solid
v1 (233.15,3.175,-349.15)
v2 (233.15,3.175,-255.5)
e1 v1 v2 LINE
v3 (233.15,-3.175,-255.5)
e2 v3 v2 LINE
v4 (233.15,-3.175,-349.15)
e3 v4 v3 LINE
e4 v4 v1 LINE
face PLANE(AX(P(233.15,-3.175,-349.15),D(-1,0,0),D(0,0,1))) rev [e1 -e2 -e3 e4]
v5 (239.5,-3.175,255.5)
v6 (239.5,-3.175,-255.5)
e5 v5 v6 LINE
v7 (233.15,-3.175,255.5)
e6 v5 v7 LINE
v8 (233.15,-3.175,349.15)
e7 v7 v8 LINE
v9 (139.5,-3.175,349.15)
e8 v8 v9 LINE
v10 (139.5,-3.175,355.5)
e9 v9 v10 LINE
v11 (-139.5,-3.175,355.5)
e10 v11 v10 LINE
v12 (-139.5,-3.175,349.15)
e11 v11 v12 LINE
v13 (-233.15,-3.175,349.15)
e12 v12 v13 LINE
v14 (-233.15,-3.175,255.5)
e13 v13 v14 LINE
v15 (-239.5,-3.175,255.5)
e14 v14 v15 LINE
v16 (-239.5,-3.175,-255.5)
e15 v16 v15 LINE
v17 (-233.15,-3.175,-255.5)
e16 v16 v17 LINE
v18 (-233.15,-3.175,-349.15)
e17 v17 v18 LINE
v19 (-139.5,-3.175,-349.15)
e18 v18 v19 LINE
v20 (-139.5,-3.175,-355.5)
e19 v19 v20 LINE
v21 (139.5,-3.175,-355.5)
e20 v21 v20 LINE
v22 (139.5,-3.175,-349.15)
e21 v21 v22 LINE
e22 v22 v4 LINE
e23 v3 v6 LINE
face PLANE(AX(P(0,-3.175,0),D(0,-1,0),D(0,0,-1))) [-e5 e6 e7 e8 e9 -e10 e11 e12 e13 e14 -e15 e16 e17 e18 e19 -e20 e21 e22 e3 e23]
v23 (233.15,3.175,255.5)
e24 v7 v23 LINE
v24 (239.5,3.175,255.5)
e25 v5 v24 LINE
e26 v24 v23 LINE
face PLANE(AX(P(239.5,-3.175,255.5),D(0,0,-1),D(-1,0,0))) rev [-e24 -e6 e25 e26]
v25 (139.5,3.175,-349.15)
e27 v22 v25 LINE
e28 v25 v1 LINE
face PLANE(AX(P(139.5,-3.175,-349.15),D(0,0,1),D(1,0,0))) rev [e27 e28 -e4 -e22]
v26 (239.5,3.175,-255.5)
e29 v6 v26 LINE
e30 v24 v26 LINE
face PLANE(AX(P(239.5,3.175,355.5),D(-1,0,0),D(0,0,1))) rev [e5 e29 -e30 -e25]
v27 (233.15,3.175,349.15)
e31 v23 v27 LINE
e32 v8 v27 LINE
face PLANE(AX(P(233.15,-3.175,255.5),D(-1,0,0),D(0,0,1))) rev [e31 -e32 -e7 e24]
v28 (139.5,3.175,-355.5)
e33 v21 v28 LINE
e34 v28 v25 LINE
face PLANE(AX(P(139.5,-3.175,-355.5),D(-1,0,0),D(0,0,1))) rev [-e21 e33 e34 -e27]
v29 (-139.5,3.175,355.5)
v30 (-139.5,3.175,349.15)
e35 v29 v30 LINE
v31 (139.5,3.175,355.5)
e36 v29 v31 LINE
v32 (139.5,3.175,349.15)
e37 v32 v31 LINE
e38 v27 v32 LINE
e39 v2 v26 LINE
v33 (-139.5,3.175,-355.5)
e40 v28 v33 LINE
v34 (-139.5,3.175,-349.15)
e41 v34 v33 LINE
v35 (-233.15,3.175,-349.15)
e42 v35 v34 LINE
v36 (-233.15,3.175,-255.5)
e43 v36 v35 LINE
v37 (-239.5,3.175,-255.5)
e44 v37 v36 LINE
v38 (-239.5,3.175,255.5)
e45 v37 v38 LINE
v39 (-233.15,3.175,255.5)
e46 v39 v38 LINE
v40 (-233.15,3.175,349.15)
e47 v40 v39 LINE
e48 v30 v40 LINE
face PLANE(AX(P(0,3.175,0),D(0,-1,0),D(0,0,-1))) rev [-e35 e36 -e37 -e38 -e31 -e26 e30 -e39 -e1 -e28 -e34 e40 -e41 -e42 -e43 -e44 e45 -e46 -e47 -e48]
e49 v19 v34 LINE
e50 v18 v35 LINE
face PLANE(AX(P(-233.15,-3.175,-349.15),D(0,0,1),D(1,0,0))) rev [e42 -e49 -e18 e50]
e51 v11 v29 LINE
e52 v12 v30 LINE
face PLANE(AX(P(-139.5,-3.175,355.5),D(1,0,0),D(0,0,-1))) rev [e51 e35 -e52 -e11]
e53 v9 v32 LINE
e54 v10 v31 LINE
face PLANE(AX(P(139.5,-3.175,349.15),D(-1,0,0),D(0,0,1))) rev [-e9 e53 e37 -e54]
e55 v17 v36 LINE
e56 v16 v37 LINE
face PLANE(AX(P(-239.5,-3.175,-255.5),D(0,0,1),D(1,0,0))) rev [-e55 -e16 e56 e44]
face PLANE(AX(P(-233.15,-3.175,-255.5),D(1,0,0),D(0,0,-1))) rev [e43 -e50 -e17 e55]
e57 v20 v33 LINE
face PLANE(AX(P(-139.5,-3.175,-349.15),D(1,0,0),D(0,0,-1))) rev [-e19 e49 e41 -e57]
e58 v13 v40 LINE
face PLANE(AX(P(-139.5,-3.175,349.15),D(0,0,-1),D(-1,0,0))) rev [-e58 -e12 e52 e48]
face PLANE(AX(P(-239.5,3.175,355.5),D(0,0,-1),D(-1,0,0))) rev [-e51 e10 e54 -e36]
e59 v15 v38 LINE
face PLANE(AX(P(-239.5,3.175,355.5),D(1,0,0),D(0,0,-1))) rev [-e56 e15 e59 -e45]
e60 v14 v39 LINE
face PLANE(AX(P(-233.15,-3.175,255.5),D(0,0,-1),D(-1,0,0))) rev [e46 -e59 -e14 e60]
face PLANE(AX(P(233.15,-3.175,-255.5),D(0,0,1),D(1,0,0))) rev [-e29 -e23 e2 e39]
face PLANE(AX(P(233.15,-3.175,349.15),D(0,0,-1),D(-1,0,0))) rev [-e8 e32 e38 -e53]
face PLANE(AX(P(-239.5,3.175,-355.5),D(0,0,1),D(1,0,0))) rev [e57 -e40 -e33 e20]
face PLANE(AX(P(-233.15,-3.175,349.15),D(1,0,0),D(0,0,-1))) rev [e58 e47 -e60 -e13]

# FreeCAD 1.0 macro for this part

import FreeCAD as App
import Part
import Sketcher
Q = App.Units.Quantity

doc = App.newDocument("Part")
params = doc.addObject("Spreadsheet::Sheet", "Params")
for row, (alias, value) in enumerate([
    ("sketch1_width", "479 mm"),
    ("sketch1_height", "711 mm"),
    ("pad1_length", "6.35 mm"),
    ("sketch2_width", "100 mm"),
    ("sketch2_width2", "6.35 mm"),
], start=1):
    params.set(f"A{row}", alias)
    params.set(f"B{row}", "=" + value)
    params.setAlias(f"B{row}", alias)

body = doc.addObject("PartDesign::Body", "Body")

# Sketch on XZ plane
sketch1 = body.newObject("Sketcher::SketchObject", "Sketch")
sketch1.AttachmentSupport = (doc.getObject("XZ_Plane"), [""])
sketch1.MapMode = "FlatFace"
sketch1.addGeometry([
    Part.LineSegment(App.Vector(-239.5, -355.5, 0), App.Vector(-239.5, 355.5, 0)),
    Part.LineSegment(App.Vector(-239.5, 355.5, 0), App.Vector(239.5, 355.5, 0)),
    Part.LineSegment(App.Vector(239.5, 355.5, 0), App.Vector(239.5, -355.5, 0)),
    Part.LineSegment(App.Vector(239.5, -355.5, 0), App.Vector(-239.5, -355.5, 0)),
], False)
sketch1.addConstraint([
    Sketcher.Constraint("Coincident", 0, 2, 1, 1),
    Sketcher.Constraint("Coincident", 1, 2, 2, 1),
    Sketcher.Constraint("Coincident", 2, 2, 3, 1),
    Sketcher.Constraint("Coincident", 3, 2, 0, 1),
    Sketcher.Constraint("Vertical", 0),
    Sketcher.Constraint("Horizontal", 1),
    Sketcher.Constraint("Vertical", 2),
    Sketcher.Constraint("Horizontal", 3),
    Sketcher.Constraint("Symmetric", 0, 2, 2, 2, -1, 1),
    Sketcher.Constraint("DistanceX", 1, 1, 1, 2, Q("479 mm")),
    Sketcher.Constraint("DistanceY", 0, 1, 0, 2, Q("711 mm")),
])
sketch1.setExpression("Constraints[9]", "Params.sketch1_width")
sketch1.setExpression("Constraints[10]", "Params.sketch1_height")
pad1 = body.newObject("PartDesign::Pad", "Pad")
pad1.Profile = sketch1
pad1.setExpression("Length", "Params.pad1_length")
pad1.Midplane = True

# Sketch on XZ plane
sketch2 = body.newObject("Sketcher::SketchObject", "Sketch001")
sketch2.AttachmentSupport = (doc.getObject("XZ_Plane"), [""])
sketch2.MapMode = "FlatFace"
sketch2.AttachmentOffset = App.Placement(App.Vector(0, 0, -3.175), App.Rotation())
sketch2.addGeometry([
    Part.LineSegment(App.Vector(-239.5, -355.5, 0), App.Vector(-239.5, -255.5, 0)),  # 0
    Part.LineSegment(App.Vector(-239.5, -255.5, 0), App.Vector(-233.15, -255.5, 0)),  # 1
    Part.LineSegment(App.Vector(-233.15, -255.5, 0), App.Vector(-233.15, -349.15, 0)),  # 2
    Part.LineSegment(App.Vector(-233.15, -349.15, 0), App.Vector(-139.5, -349.15, 0)),  # 3
    Part.LineSegment(App.Vector(-139.5, -349.15, 0), App.Vector(-139.5, -355.5, 0)),  # 4
    Part.LineSegment(App.Vector(-139.5, -355.5, 0), App.Vector(-239.5, -355.5, 0)),  # 5
    Part.LineSegment(App.Vector(239.5, -355.5, 0), App.Vector(139.5, -355.5, 0)),  # 6
    Part.LineSegment(App.Vector(139.5, -355.5, 0), App.Vector(139.5, -349.15, 0)),  # 7
    Part.LineSegment(App.Vector(139.5, -349.15, 0), App.Vector(233.15, -349.15, 0)),  # 8
    Part.LineSegment(App.Vector(233.15, -349.15, 0), App.Vector(233.15, -255.5, 0)),  # 9
    Part.LineSegment(App.Vector(233.15, -255.5, 0), App.Vector(239.5, -255.5, 0)),  # 10
    Part.LineSegment(App.Vector(239.5, -255.5, 0), App.Vector(239.5, -355.5, 0)),  # 11
    Part.LineSegment(App.Vector(239.5, 355.5, 0), App.Vector(239.5, 255.5, 0)),  # 12
    Part.LineSegment(App.Vector(239.5, 255.5, 0), App.Vector(233.15, 255.5, 0)),  # 13
    Part.LineSegment(App.Vector(233.15, 255.5, 0), App.Vector(233.15, 349.15, 0)),  # 14
    Part.LineSegment(App.Vector(233.15, 349.15, 0), App.Vector(139.5, 349.15, 0)),  # 15
    Part.LineSegment(App.Vector(139.5, 349.15, 0), App.Vector(139.5, 355.5, 0)),  # 16
    Part.LineSegment(App.Vector(139.5, 355.5, 0), App.Vector(239.5, 355.5, 0)),  # 17
    Part.LineSegment(App.Vector(-239.5, 355.5, 0), App.Vector(-139.5, 355.5, 0)),  # 18
    Part.LineSegment(App.Vector(-139.5, 355.5, 0), App.Vector(-139.5, 349.15, 0)),  # 19
    Part.LineSegment(App.Vector(-139.5, 349.15, 0), App.Vector(-233.15, 349.15, 0)),  # 20
    Part.LineSegment(App.Vector(-233.15, 349.15, 0), App.Vector(-233.15, 255.5, 0)),  # 21
    Part.LineSegment(App.Vector(-233.15, 255.5, 0), App.Vector(-239.5, 255.5, 0)),  # 22
    Part.LineSegment(App.Vector(-239.5, 255.5, 0), App.Vector(-239.5, 355.5, 0)),  # 23
], False)
sketch2.addConstraint([
    Sketcher.Constraint("Coincident", 0, 2, 1, 1),
    Sketcher.Constraint("Coincident", 1, 2, 2, 1),
    Sketcher.Constraint("Coincident", 2, 2, 3, 1),
    Sketcher.Constraint("Coincident", 3, 2, 4, 1),
    Sketcher.Constraint("Coincident", 4, 2, 5, 1),
    Sketcher.Constraint("Coincident", 5, 2, 0, 1),
    Sketcher.Constraint("Coincident", 6, 2, 7, 1),
    Sketcher.Constraint("Coincident", 7, 2, 8, 1),
    Sketcher.Constraint("Coincident", 8, 2, 9, 1),
    Sketcher.Constraint("Coincident", 9, 2, 10, 1),
    Sketcher.Constraint("Coincident", 10, 2, 11, 1),
    Sketcher.Constraint("Coincident", 11, 2, 6, 1),
    Sketcher.Constraint("Coincident", 12, 2, 13, 1),
    Sketcher.Constraint("Coincident", 13, 2, 14, 1),
    Sketcher.Constraint("Coincident", 14, 2, 15, 1),
    Sketcher.Constraint("Coincident", 15, 2, 16, 1),
    Sketcher.Constraint("Coincident", 16, 2, 17, 1),
    Sketcher.Constraint("Coincident", 17, 2, 12, 1),
    Sketcher.Constraint("Coincident", 18, 2, 19, 1),
    Sketcher.Constraint("Coincident", 19, 2, 20, 1),
    Sketcher.Constraint("Coincident", 20, 2, 21, 1),
    Sketcher.Constraint("Coincident", 21, 2, 22, 1),
    Sketcher.Constraint("Coincident", 22, 2, 23, 1),
    Sketcher.Constraint("Coincident", 23, 2, 18, 1),
    Sketcher.Constraint("Vertical", 0),
    Sketcher.Constraint("Horizontal", 1),
    Sketcher.Constraint("Vertical", 2),
    Sketcher.Constraint("Horizontal", 3),
    Sketcher.Constraint("Vertical", 4),
    Sketcher.Constraint("Horizontal", 5),
    Sketcher.Constraint("Horizontal", 6),
    Sketcher.Constraint("Vertical", 7),
    Sketcher.Constraint("Horizontal", 8),
    Sketcher.Constraint("Vertical", 9),
    Sketcher.Constraint("Horizontal", 10),
    Sketcher.Constraint("Vertical", 11),
    Sketcher.Constraint("Vertical", 12),
    Sketcher.Constraint("Horizontal", 13),
    Sketcher.Constraint("Vertical", 14),
    Sketcher.Constraint("Horizontal", 15),
    Sketcher.Constraint("Vertical", 16),
    Sketcher.Constraint("Horizontal", 17),
    Sketcher.Constraint("Horizontal", 18),
    Sketcher.Constraint("Vertical", 19),
    Sketcher.Constraint("Horizontal", 20),
    Sketcher.Constraint("Vertical", 21),
    Sketcher.Constraint("Horizontal", 22),
    Sketcher.Constraint("Vertical", 23),
    Sketcher.Constraint("Symmetric", 0, 2, 12, 2, -1, 1),
    Sketcher.Constraint("Symmetric", 2, 2, 14, 2, -1, 1),
    Sketcher.Constraint("Symmetric", 4, 2, 16, 2, -1, 1),
    Sketcher.Constraint("Symmetric", 6, 2, 18, 2, -1, 1),
    Sketcher.Constraint("Symmetric", 8, 2, 20, 2, -1, 1),
    Sketcher.Constraint("Symmetric", 10, 2, 22, 2, -1, 1),
    Sketcher.Constraint("Symmetric", 4, 2, 6, 2, -2),
    Sketcher.Constraint("Symmetric", 2, 2, 8, 2, -2),
    Sketcher.Constraint("Symmetric", 0, 2, 10, 2, -2),
    Sketcher.Constraint("Equal", 18, 0),
    Sketcher.Constraint("Equal", 20, 2),
    Sketcher.Constraint("DistanceX", 5, 2, 5, 1, Q("100 mm")),
    Sketcher.Constraint("DistanceX", 4, 2, 6, 2, Q("279 mm")),
    Sketcher.Constraint("DistanceY", 10, 2, 12, 2, Q("511 mm")),
    Sketcher.Constraint("DistanceX", 1, 1, 1, 2, Q("6.35 mm")),
])
sketch2.setExpression("Constraints[59]", "Params.sketch2_width")
sketch2.setExpression("Constraints[62]", "Params.sketch2_width2")
pocket1 = body.newObject("PartDesign::Pocket", "Pocket")
pocket1.Profile = sketch2
pocket1.Type = "ThroughAll"
pocket1.Reversed = True

doc.recompute()
